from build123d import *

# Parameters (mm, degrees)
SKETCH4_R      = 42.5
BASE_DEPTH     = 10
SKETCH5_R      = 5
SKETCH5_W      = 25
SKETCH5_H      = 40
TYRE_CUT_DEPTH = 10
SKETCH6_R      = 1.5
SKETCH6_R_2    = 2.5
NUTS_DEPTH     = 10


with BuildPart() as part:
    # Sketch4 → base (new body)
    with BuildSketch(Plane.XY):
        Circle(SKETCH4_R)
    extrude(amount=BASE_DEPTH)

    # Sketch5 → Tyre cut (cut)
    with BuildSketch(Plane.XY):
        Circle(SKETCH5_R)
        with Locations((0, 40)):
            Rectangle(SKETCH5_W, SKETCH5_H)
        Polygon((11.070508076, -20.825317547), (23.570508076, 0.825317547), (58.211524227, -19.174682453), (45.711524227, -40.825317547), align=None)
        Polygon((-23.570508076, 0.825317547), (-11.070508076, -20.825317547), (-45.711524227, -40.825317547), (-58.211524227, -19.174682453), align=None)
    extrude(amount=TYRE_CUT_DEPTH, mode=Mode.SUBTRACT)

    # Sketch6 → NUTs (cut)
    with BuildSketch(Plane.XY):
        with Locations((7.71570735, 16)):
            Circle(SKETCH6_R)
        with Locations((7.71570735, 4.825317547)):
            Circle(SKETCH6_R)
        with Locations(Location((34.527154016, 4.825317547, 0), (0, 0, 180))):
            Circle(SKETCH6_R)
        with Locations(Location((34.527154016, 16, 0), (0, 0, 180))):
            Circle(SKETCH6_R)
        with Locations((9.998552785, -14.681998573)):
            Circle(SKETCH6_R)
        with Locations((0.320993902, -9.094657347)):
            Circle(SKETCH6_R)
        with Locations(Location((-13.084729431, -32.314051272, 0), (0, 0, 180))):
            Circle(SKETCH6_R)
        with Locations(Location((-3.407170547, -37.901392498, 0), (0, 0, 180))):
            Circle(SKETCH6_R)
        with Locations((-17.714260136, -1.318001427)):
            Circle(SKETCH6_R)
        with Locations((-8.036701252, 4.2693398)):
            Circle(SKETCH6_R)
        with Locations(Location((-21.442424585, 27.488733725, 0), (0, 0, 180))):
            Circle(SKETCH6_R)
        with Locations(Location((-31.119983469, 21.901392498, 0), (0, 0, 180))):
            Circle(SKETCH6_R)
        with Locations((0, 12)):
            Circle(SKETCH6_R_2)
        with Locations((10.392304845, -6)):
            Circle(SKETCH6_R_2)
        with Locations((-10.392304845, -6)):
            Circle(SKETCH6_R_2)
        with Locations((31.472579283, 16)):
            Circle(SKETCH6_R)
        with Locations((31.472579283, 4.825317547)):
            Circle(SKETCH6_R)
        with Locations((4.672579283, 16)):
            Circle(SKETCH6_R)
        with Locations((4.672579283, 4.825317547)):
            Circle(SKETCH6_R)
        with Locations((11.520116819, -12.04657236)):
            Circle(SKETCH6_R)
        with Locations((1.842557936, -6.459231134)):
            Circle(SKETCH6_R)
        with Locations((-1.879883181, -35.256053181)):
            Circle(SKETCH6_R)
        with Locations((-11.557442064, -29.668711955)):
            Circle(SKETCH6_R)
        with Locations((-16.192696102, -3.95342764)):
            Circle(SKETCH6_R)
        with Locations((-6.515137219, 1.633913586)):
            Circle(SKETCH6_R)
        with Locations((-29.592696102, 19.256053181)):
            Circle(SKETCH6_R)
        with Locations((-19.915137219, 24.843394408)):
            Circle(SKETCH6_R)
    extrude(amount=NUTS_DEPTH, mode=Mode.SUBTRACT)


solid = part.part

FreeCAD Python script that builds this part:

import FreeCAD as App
import Part
import Sketcher

V = App.Vector
Q = App.Units.Quantity


def add_polygon(sketch, points):
    """Adds a closed chain of lines whose ends are joined by coincident constraints."""
    first, n = sketch.GeometryCount, len(points)
    for a, b in zip(points, points[1:] + points[:1]):
        sketch.addGeometry(Part.LineSegment(App.Vector(*a, 0), App.Vector(*b, 0)), False)
    for i in range(n):
        sketch.addConstraint(Sketcher.Constraint("Coincident", first + i, 2, first + (i + 1) % n, 1))

doc = App.newDocument("Part")
body = doc.addObject("PartDesign::Body", "Body")

sketch1 = body.newObject("Sketcher::SketchObject", "Sketch")
sketch1.AttachmentSupport = (doc.getObject("XY_Plane"), [""])
sketch1.MapMode = "FlatFace"
sketch1.addGeometry(Part.Circle(V(0, 0, 0), V(0, 0, 1), 42), False)
sketch1.addConstraint(Sketcher.Constraint("Coincident", 0, 3, -1, 1))
sketch1.addConstraint(Sketcher.Constraint("Diameter", 0, Q("85 mm")))
pad1 = body.newObject("PartDesign::Pad", "Pad")
pad1.Profile = sketch1
pad1.Length = 10

sketch2 = body.newObject("Sketcher::SketchObject", "Sketch001")
sketch2.AttachmentSupport = (doc.getObject("XY_Plane"), [""])
sketch2.MapMode = "FlatFace"
sketch2.addGeometry(Part.Circle(V(0, 0, 0), V(0, 0, 1), 5), False)
add_polygon(sketch2, [(-12, 60), (-12, 20), (12, 20), (12, 60)])
add_polygon(sketch2, [(24, 1), (11, -21), (46, -41), (58, -19)])
add_polygon(sketch2, [(-11, -21), (-24, 1), (-58, -19), (-46, -41)])
sketch2.addConstraint(Sketcher.Constraint("Vertical", 1))
sketch2.addConstraint(Sketcher.Constraint("Horizontal", 2))
sketch2.addConstraint(Sketcher.Constraint("Vertical", 3))
sketch2.addConstraint(Sketcher.Constraint("Horizontal", 4))
sketch2.addConstraint(Sketcher.Constraint("Coincident", 0, 3, -1, 1))
sketch2.addConstraint(Sketcher.Constraint("Symmetric", 8, 2, 9, 2, -2))
sketch2.addConstraint(Sketcher.Constraint("Symmetric", 7, 2, 10, 2, -2))
sketch2.addConstraint(Sketcher.Constraint("Symmetric", 6, 2, 11, 2, -2))
sketch2.addConstraint(Sketcher.Constraint("Symmetric", 5, 2, 12, 2, -2))
sketch2.addConstraint(Sketcher.Constraint("Perpendicular", 5, 6))
sketch2.addConstraint(Sketcher.Constraint("Perpendicular", 6, 7))
sketch2.addConstraint(Sketcher.Constraint("Perpendicular", 7, 8))
sketch2.addConstraint(Sketcher.Constraint("Diameter", 0, Q("10 mm")))
sketch2.addConstraint(Sketcher.Constraint("DistanceX", 2, 1, 2, 2, Q("25 mm")))
sketch2.addConstraint(Sketcher.Constraint("DistanceY", 1, 2, 1, 1, Q("40 mm")))
sketch2.addConstraint(Sketcher.Constraint("Angle", 5, Q("-120 deg")))
sketch2.addConstraint(Sketcher.Constraint("Distance", 5, Q("25 mm")))
sketch2.addConstraint(Sketcher.Constraint("Distance", 6, Q("40 mm")))
sketch2.addConstraint(Sketcher.Constraint("DistanceY", -1, 1, 1, 2, Q("20 mm")))
sketch2.addConstraint(Sketcher.Constraint("DistanceX", 1, 2, -1, 1, Q("12.5 mm")))
sketch2.addConstraint(Sketcher.Constraint("DistanceX", -1, 1, 5, 2, Q("11.070508 mm")))
sketch2.addConstraint(Sketcher.Constraint("DistanceY", 5, 2, -1, 1, Q("20.825318 mm")))
pocket1 = body.newObject("PartDesign::Pocket", "Pocket")
pocket1.Profile = sketch2
pocket1.Length = 10
pocket1.Reversed = True

sketch3 = body.newObject("Sketcher::SketchObject", "Sketch002")
sketch3.AttachmentSupport = (doc.getObject("XY_Plane"), [""])
sketch3.MapMode = "FlatFace"
sketch3.addGeometry(Part.Circle(V(7.7, 16, 0), V(0, 0, 1), 1.5), False)
sketch3.addGeometry(Part.Circle(V(7.7, 4.8, 0), V(0, 0, 1), 1.5), False)
sketch3.addGeometry(Part.Circle(V(34.5, 4.8, 0), V(0, 0, 1), 1.5), False)
sketch3.addGeometry(Part.Circle(V(34.5, 16, 0), V(0, 0, 1), 1.5), False)
sketch3.addGeometry(Part.Circle(V(10, -14.7, 0), V(0, 0, 1), 1.5), False)
sketch3.addGeometry(Part.Circle(V(0.3, -9.1, 0), V(0, 0, 1), 1.5), False)
sketch3.addGeometry(Part.Circle(V(-13.1, -32.3, 0), V(0, 0, 1), 1.5), False)
sketch3.addGeometry(Part.Circle(V(-3.4, -37.9, 0), V(0, 0, 1), 1.5), False)
sketch3.addGeometry(Part.Circle(V(-17.7, -1.3, 0), V(0, 0, 1), 1.5), False)
sketch3.addGeometry(Part.Circle(V(-8, 4.3, 0), V(0, 0, 1), 1.5), False)
sketch3.addGeometry(Part.Circle(V(-21.4, 27.5, 0), V(0, 0, 1), 1.5), False)
sketch3.addGeometry(Part.Circle(V(-31.1, 21.9, 0), V(0, 0, 1), 1.5), False)
sketch3.addGeometry(Part.Circle(V(0, 12, 0), V(0, 0, 1), 2.5), False)
sketch3.addGeometry(Part.Circle(V(10.4, -6, 0), V(0, 0, 1), 2.5), False)
sketch3.addGeometry(Part.Circle(V(-10.4, -6, 0), V(0, 0, 1), 2.5), False)
sketch3.addGeometry(Part.Circle(V(31.5, 16, 0), V(0, 0, 1), 1.5), False)
sketch3.addGeometry(Part.Circle(V(31.5, 4.8, 0), V(0, 0, 1), 1.5), False)
sketch3.addGeometry(Part.Circle(V(4.7, 16, 0), V(0, 0, 1), 1.5), False)
sketch3.addGeometry(Part.Circle(V(4.7, 4.8, 0), V(0, 0, 1), 1.5), False)
sketch3.addGeometry(Part.Circle(V(11.5, -12, 0), V(0, 0, 1), 1.5), False)
sketch3.addGeometry(Part.Circle(V(1.8, -6.5, 0), V(0, 0, 1), 1.5), False)
sketch3.addGeometry(Part.Circle(V(-1.9, -35.3, 0), V(0, 0, 1), 1.5), False)
sketch3.addGeometry(Part.Circle(V(-11.6, -29.7, 0), V(0, 0, 1), 1.5), False)
sketch3.addGeometry(Part.Circle(V(-16.2, -4, 0), V(0, 0, 1), 1.5), False)
sketch3.addGeometry(Part.Circle(V(-6.5, 1.6, 0), V(0, 0, 1), 1.5), False)
sketch3.addGeometry(Part.Circle(V(-29.6, 19.3, 0), V(0, 0, 1), 1.5), False)
sketch3.addGeometry(Part.Circle(V(-19.9, 24.8, 0), V(0, 0, 1), 1.5), False)
sketch3.addConstraint(Sketcher.Constraint("Equal", 0, 1))
sketch3.addConstraint(Sketcher.Constraint("Equal", 1, 2))
sketch3.addConstraint(Sketcher.Constraint("Equal", 2, 3))
sketch3.addConstraint(Sketcher.Constraint("Equal", 3, 4))
sketch3.addConstraint(Sketcher.Constraint("Equal", 4, 5))
sketch3.addConstraint(Sketcher.Constraint("Equal", 5, 6))
sketch3.addConstraint(Sketcher.Constraint("Equal", 6, 7))
sketch3.addConstraint(Sketcher.Constraint("Equal", 7, 8))
sketch3.addConstraint(Sketcher.Constraint("Equal", 8, 9))
sketch3.addConstraint(Sketcher.Constraint("Equal", 9, 10))
sketch3.addConstraint(Sketcher.Constraint("Equal", 10, 11))
sketch3.addConstraint(Sketcher.Constraint("Equal", 12, 13))
sketch3.addConstraint(Sketcher.Constraint("Equal", 13, 14))
sketch3.addConstraint(Sketcher.Constraint("Equal", 11, 15))
sketch3.addConstraint(Sketcher.Constraint("Equal", 15, 16))
sketch3.addConstraint(Sketcher.Constraint("Equal", 16, 17))
sketch3.addConstraint(Sketcher.Constraint("Equal", 17, 18))
sketch3.addConstraint(Sketcher.Constraint("Equal", 18, 19))
sketch3.addConstraint(Sketcher.Constraint("Equal", 19, 20))
sketch3.addConstraint(Sketcher.Constraint("Equal", 20, 21))
sketch3.addConstraint(Sketcher.Constraint("Equal", 21, 22))
sketch3.addConstraint(Sketcher.Constraint("Equal", 22, 23))
sketch3.addConstraint(Sketcher.Constraint("Equal", 23, 24))
sketch3.addConstraint(Sketcher.Constraint("Equal", 24, 25))
sketch3.addConstraint(Sketcher.Constraint("Equal", 25, 26))
sketch3.addConstraint(Sketcher.Constraint("Symmetric", 13, 3, 14, 3, -2))
sketch3.addConstraint(Sketcher.Constraint("PointOnObject", 12, 3, -2))
sketch3.addConstraint(Sketcher.Constraint("Horizontal", 1, 3, 2, 3))
sketch3.addConstraint(Sketcher.Constraint("Horizontal", 0, 3, 3, 3))
sketch3.addConstraint(Sketcher.Constraint("Horizontal", 3, 3, 15, 3))
sketch3.addConstraint(Sketcher.Constraint("Horizontal", 2, 3, 16, 3))
sketch3.addConstraint(Sketcher.Constraint("Horizontal", 15, 3, 17, 3))
sketch3.addConstraint(Sketcher.Constraint("Horizontal", 16, 3, 18, 3))
sketch3.addConstraint(Sketcher.Constraint("Vertical", 0, 3, 1, 3))
sketch3.addConstraint(Sketcher.Constraint("Vertical", 2, 3, 3, 3))
sketch3.addConstraint(Sketcher.Constraint("Vertical", 15, 3, 16, 3))
sketch3.addConstraint(Sketcher.Constraint("Vertical", 17, 3, 18, 3))
sketch3.addConstraint(Sketcher.Constraint("Diameter", 0, Q("3 mm")))
sketch3.addConstraint(Sketcher.Constraint("Diameter", 12, Q("5 mm")))
sketch3.addConstraint(Sketcher.Constraint("DistanceY", -1, 1, 0, 3, Q("16 mm")))
sketch3.addConstraint(Sketcher.Constraint("DistanceY", -1, 1, 12, 3, Q("12 mm")))
sketch3.addConstraint(Sketcher.Constraint("DistanceY", 13, 3, -1, 1, Q("6 mm")))
sketch3.addConstraint(Sketcher.Constraint("DistanceX", 21, 3, 19, 3, Q("13.4 mm")))
sketch3.addConstraint(Sketcher.Constraint("DistanceX", 25, 3, 23, 3, Q("13.4 mm")))
sketch3.addConstraint(Sketcher.Constraint("DistanceY", 4, 3, -1, 1, Q("14.681999 mm")))
sketch3.addConstraint(Sketcher.Constraint("DistanceY", 8, 3, -1, 1, Q("1.318001 mm")))
sketch3.addConstraint(Sketcher.Constraint("DistanceY", 21, 3, 6, 3, Q("2.942002 mm")))
sketch3.addConstraint(Sketcher.Constraint("DistanceY", 11, 3, 26, 3, Q("2.942002 mm")))
sketch3.addConstraint(Sketcher.Constraint("DistanceX", 9, 3, -1, 1, Q("8.036701 mm")))
sketch3.addConstraint(Sketcher.Constraint("DistanceX", 4, 3, 2, 3, Q("24.528601 mm")))
sketch3.addConstraint(Sketcher.Constraint("DistanceX", 14, 3, 5, 3, Q("10.713299 mm")))
sketch3.addConstraint(Sketcher.Constraint("DistanceX", 6, 3, -1, 1, Q("13.084729 mm")))
sketch3.addConstraint(Sketcher.Constraint("DistanceY", 6, 3, -1, 1, Q("32.314051 mm")))
sketch3.addConstraint(Sketcher.Constraint("DistanceX", 7, 3, -1, 1, Q("3.407171 mm")))
sketch3.addConstraint(Sketcher.Constraint("DistanceX", 8, 3, -1, 1, Q("17.71426 mm")))
sketch3.addConstraint(Sketcher.Constraint("DistanceY", -1, 1, 9, 3, Q("4.26934 mm")))
sketch3.addConstraint(Sketcher.Constraint("DistanceX", -1, 1, 15, 3, Q("31.472579 mm")))
sketch3.addConstraint(Sketcher.Constraint("DistanceX", -1, 1, 17, 3, Q("4.672579 mm")))
sketch3.addConstraint(Sketcher.Constraint("DistanceY", 20, 3, -1, 1, Q("6.459231 mm")))
sketch3.addConstraint(Sketcher.Constraint("DistanceY", 22, 3, -1, 1, Q("29.668712 mm")))
sketch3.addConstraint(Sketcher.Constraint("DistanceX", 5, 3, 4, 3, Q("9.677559 mm")))
sketch3.addConstraint(Sketcher.Constraint("DistanceY", 4, 3, 5, 3, Q("5.587341 mm")))
sketch3.addConstraint(Sketcher.Constraint("DistanceY", 6, 3, 1, 3, Q("37.139369 mm")))
sketch3.addConstraint(Sketcher.Constraint("DistanceY", 7, 3, 6, 3, Q("5.587341 mm")))
sketch3.addConstraint(Sketcher.Constraint("DistanceX", 9, 3, 1, 3, Q("15.752409 mm")))
sketch3.addConstraint(Sketcher.Constraint("DistanceX", 10, 3, 0, 3, Q("29.158132 mm")))
sketch3.addConstraint(Sketcher.Constraint("DistanceX", 10, 3, 5, 3, Q("21.763418 mm")))
sketch3.addConstraint(Sketcher.Constraint("DistanceY", 5, 3, 10, 3, Q("36.583391 mm")))
sketch3.addConstraint(Sketcher.Constraint("DistanceX", 11, 3, 10, 3, Q("9.677559 mm")))
sketch3.addConstraint(Sketcher.Constraint("DistanceY", 11, 3, 10, 3, Q("5.587341 mm")))
sketch3.addConstraint(Sketcher.Constraint("DistanceX", 13, 3, 19, 3, Q("1.127812 mm")))
sketch3.addConstraint(Sketcher.Constraint("DistanceY", 19, 3, 1, 3, Q("16.87189 mm")))
sketch3.addConstraint(Sketcher.Constraint("DistanceX", 20, 3, 19, 3, Q("9.677559 mm")))
sketch3.addConstraint(Sketcher.Constraint("DistanceX", 22, 3, 21, 3, Q("9.677559 mm")))
sketch3.addConstraint(Sketcher.Constraint("DistanceX", 23, 3, 14, 3, Q("5.800391 mm")))
sketch3.addConstraint(Sketcher.Constraint("DistanceY", 5, 3, 23, 3, Q("5.14123 mm")))
sketch3.addConstraint(Sketcher.Constraint("DistanceX", 23, 3, 24, 3, Q("9.677559 mm")))
sketch3.addConstraint(Sketcher.Constraint("DistanceY", 23, 3, 24, 3, Q("5.587341 mm")))
sketch3.addConstraint(Sketcher.Constraint("DistanceY", 25, 3, 11, 3, Q("2.645339 mm")))
sketch3.addConstraint(Sketcher.Constraint("DistanceX", 25, 3, 26, 3, Q("9.677559 mm")))
pocket2 = body.newObject("PartDesign::Pocket", "Pocket001")
pocket2.Profile = sketch3
pocket2.Length = 10
pocket2.Reversed = True

doc.recompute()
